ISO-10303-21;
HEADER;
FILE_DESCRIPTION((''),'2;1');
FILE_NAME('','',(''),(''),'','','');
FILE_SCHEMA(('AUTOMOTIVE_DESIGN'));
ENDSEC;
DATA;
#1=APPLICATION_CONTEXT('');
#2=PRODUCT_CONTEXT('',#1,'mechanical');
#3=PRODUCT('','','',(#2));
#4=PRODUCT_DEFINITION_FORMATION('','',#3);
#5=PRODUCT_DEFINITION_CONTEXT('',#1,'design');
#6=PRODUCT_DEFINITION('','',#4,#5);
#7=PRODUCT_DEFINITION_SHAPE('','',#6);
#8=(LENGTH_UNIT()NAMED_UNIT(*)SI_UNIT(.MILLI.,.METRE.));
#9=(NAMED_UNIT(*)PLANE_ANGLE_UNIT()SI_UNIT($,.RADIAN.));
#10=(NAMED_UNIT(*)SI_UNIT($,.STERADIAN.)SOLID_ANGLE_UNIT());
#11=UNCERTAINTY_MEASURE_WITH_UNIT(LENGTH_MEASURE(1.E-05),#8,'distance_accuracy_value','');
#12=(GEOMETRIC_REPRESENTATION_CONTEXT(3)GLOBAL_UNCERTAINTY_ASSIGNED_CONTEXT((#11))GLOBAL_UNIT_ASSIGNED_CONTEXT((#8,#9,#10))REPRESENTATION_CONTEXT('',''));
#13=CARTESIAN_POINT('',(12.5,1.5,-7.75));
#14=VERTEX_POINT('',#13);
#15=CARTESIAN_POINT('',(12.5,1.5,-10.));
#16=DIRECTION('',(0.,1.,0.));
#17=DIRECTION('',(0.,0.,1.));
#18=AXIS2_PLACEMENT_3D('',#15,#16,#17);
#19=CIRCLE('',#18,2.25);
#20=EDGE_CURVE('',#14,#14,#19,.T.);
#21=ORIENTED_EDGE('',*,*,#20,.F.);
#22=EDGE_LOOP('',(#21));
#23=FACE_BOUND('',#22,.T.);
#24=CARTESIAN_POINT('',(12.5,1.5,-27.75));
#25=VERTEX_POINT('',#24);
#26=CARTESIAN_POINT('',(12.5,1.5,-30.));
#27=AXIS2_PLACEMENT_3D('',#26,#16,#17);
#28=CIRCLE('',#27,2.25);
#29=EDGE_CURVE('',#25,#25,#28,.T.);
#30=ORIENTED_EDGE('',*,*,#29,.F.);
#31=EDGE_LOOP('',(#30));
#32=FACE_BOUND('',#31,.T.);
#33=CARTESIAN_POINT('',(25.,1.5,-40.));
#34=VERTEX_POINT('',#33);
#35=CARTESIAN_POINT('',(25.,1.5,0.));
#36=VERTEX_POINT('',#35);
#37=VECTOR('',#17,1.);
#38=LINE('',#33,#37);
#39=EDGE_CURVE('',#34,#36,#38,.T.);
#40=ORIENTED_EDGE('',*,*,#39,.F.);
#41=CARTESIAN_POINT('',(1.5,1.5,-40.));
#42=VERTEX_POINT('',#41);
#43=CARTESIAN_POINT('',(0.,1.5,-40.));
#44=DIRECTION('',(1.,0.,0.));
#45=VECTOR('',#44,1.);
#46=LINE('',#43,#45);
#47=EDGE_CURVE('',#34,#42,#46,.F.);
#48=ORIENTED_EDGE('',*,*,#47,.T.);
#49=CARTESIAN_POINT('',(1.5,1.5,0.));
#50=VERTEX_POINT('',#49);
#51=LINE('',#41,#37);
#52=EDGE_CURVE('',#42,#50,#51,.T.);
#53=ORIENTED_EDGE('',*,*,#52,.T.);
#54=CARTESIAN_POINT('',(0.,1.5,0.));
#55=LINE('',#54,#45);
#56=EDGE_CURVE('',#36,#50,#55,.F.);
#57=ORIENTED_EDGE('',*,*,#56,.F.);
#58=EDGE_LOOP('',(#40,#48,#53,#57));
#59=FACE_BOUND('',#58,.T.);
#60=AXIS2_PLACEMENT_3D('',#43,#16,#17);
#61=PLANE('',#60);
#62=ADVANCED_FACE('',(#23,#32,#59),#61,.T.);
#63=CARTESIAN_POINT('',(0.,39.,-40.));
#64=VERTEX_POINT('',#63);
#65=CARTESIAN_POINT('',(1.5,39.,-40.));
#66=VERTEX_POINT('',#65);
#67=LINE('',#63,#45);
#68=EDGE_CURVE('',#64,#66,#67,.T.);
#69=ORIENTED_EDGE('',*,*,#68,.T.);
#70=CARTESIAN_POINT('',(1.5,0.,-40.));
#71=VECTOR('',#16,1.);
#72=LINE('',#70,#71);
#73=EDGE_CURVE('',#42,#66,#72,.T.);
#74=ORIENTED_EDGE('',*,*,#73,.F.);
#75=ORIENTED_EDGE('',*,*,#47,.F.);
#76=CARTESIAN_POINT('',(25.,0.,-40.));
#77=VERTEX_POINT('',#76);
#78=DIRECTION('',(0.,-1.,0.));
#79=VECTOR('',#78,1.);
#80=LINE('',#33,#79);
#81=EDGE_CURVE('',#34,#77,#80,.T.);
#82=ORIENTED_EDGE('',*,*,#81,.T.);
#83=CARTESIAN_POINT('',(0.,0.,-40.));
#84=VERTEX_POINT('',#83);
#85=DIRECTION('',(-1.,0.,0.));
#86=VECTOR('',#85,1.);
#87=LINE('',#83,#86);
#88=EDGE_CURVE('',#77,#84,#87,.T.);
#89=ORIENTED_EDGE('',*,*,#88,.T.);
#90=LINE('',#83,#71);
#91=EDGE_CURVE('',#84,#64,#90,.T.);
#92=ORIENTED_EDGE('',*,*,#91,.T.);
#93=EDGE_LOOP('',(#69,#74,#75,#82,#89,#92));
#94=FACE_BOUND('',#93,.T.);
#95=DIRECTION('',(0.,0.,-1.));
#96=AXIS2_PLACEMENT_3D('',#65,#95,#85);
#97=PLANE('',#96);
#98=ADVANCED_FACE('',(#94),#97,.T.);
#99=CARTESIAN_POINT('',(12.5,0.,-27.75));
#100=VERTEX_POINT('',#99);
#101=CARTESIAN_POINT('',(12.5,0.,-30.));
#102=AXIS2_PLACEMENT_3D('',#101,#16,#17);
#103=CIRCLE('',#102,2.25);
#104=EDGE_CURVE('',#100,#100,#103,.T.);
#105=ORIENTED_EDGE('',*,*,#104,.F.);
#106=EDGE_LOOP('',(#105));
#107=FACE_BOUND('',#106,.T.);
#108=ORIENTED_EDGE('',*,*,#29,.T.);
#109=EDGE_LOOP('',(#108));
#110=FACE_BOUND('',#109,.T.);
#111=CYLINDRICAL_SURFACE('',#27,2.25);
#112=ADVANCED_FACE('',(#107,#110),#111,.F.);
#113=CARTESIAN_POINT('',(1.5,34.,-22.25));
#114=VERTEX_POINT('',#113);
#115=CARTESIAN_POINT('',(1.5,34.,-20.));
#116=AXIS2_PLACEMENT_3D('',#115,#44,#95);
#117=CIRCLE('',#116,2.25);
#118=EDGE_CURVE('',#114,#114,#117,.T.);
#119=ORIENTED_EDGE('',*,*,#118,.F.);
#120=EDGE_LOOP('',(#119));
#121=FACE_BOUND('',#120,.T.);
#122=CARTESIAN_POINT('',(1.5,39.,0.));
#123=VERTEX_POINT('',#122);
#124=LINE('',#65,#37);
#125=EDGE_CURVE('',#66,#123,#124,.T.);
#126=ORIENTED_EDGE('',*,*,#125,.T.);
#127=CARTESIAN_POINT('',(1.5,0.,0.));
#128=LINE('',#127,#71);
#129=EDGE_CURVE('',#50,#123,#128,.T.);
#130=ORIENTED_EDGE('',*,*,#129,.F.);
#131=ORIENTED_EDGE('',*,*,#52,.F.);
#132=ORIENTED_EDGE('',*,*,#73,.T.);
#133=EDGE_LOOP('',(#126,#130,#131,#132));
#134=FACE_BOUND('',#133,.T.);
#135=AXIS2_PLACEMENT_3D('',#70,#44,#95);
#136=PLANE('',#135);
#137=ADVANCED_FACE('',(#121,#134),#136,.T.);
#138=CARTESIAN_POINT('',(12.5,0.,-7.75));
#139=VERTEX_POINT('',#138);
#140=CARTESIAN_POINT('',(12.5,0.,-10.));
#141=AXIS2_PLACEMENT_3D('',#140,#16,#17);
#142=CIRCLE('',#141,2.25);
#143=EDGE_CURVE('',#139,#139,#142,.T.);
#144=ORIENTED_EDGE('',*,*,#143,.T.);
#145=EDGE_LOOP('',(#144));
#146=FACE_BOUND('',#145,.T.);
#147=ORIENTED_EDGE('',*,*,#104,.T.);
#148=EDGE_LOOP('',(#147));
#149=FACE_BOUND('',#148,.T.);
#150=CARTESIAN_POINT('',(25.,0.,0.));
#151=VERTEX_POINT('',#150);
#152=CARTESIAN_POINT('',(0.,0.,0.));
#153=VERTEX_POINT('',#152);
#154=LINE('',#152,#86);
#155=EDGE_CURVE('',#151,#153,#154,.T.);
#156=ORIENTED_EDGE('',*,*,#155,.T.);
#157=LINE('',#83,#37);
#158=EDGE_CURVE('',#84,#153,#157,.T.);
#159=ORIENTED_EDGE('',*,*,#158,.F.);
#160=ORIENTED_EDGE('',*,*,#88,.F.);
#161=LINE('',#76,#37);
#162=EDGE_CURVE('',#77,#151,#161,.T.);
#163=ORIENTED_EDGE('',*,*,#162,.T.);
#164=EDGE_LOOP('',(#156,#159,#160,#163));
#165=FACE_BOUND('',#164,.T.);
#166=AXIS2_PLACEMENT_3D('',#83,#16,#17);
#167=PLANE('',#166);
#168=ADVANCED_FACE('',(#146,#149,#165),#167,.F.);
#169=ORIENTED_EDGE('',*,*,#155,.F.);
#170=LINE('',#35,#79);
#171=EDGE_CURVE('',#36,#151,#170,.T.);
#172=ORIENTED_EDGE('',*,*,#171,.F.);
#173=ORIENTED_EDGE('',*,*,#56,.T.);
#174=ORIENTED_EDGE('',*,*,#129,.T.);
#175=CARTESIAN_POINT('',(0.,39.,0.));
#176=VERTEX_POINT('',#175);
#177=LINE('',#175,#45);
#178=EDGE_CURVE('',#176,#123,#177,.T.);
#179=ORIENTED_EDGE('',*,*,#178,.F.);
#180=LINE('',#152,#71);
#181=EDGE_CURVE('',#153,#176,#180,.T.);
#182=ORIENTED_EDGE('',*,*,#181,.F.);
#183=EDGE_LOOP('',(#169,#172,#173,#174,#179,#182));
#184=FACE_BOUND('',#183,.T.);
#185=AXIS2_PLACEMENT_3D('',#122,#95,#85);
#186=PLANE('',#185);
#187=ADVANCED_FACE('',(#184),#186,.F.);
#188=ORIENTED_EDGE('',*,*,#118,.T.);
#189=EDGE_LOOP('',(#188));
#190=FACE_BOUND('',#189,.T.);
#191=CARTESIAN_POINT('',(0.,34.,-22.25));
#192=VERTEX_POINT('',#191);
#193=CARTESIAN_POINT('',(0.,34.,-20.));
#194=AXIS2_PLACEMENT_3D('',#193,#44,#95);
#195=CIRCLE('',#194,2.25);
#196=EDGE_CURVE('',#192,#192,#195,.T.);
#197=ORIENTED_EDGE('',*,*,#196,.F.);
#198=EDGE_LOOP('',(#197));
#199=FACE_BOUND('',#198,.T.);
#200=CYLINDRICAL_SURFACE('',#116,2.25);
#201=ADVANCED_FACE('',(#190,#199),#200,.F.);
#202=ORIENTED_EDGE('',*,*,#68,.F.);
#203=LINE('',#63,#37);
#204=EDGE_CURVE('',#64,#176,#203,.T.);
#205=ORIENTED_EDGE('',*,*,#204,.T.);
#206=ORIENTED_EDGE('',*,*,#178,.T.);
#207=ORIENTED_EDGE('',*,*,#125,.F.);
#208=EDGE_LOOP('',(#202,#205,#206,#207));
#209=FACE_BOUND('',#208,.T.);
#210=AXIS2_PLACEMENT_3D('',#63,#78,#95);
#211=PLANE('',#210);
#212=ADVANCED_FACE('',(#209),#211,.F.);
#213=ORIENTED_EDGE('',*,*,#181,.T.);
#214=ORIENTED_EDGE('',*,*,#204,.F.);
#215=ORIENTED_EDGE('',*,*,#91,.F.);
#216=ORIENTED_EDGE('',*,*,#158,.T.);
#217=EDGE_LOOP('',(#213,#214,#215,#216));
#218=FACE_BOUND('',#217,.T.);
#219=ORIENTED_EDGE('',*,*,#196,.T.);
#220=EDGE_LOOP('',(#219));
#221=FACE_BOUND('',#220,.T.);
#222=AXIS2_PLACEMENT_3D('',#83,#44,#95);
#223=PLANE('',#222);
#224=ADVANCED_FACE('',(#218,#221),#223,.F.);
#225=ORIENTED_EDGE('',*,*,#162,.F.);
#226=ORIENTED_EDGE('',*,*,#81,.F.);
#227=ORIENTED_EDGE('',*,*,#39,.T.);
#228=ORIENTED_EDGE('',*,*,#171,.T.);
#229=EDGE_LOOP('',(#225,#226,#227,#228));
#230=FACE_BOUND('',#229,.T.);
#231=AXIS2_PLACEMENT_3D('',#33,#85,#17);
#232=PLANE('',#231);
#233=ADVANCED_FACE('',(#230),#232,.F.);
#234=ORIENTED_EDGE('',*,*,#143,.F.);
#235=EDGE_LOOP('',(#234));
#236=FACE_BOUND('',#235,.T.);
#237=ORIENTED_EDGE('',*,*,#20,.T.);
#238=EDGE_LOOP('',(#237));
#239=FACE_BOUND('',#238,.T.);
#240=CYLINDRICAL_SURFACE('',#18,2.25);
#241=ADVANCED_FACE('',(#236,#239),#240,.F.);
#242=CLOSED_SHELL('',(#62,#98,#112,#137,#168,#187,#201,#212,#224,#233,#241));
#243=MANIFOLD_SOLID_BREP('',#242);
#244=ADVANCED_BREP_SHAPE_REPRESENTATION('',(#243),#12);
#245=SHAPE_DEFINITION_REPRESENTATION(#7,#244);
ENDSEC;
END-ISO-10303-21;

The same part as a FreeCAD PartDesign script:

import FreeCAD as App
import Part
import Sketcher

doc = App.newDocument("Part")
body = doc.addObject("PartDesign::Body", "Body")

# Sketch on XY plane
sketch1 = body.newObject("Sketcher::SketchObject", "Sketch")
sketch1.AttachmentSupport = (doc.getObject("XY_Plane"), [""])
sketch1.MapMode = "FlatFace"
sketch1.addGeometry([
    Part.LineSegment(App.Vector(0, 39, 0), App.Vector(0, 0, 0)),  # 0
    Part.LineSegment(App.Vector(0, 0, 0), App.Vector(25, 0, 0)),  # 1
    Part.LineSegment(App.Vector(25, 0, 0), App.Vector(25, 1.5, 0)),  # 2
    Part.LineSegment(App.Vector(25, 1.5, 0), App.Vector(1.5, 1.5, 0)),  # 3
    Part.LineSegment(App.Vector(1.5, 1.5, 0), App.Vector(1.5, 39, 0)),  # 4
    Part.LineSegment(App.Vector(1.5, 39, 0), App.Vector(0, 39, 0)),  # 5
], False)
sketch1.addConstraint([
    Sketcher.Constraint("Coincident", 0, 2, 1, 1),
    Sketcher.Constraint("Coincident", 1, 2, 2, 1),
    Sketcher.Constraint("Coincident", 2, 2, 3, 1),
    Sketcher.Constraint("Coincident", 3, 2, 4, 1),
    Sketcher.Constraint("Coincident", 4, 2, 5, 1),
    Sketcher.Constraint("Coincident", 5, 2, 0, 1),
    Sketcher.Constraint("Vertical", 0),
    Sketcher.Constraint("Horizontal", 1),
    Sketcher.Constraint("Vertical", 2),
    Sketcher.Constraint("Horizontal", 3),
    Sketcher.Constraint("Vertical", 4),
    Sketcher.Constraint("Horizontal", 5),
    Sketcher.Constraint("Coincident", 0, 2, -1, 1),
    Sketcher.Constraint("Equal", 5, 2),
    Sketcher.Constraint("DistanceX", 1, 1, 1, 2, 25.0),
    Sketcher.Constraint("DistanceY", 0, 2, 0, 1, 39.0),
    Sketcher.Constraint("DistanceX", 3, 2, 3, 1, 23.5),
])
pad1 = body.newObject("PartDesign::Pad", "Pad")
pad1.Profile = sketch1
pad1.Length = 40
pad1.Reversed = True

# Sketch on XZ plane
sketch2 = body.newObject("Sketcher::SketchObject", "Sketch001")
sketch2.AttachmentSupport = (doc.getObject("XZ_Plane"), [""])
sketch2.MapMode = "FlatFace"
sketch2.AttachmentOffset = App.Placement(App.Vector(0, 0, -1.5), App.Rotation())
sketch2.addGeometry([
    Part.Circle(App.Vector(12.5, -10, 0), App.Vector(0, 0, 1), 2.25),
    Part.Circle(App.Vector(12.5, -30, 0), App.Vector(0, 0, 1), 2.25),
], False)
sketch2.addConstraint([
    Sketcher.Constraint("Equal", 0, 1),
    Sketcher.Constraint("Vertical", 0, 3, 1, 3),
    Sketcher.Constraint("Diameter", 0, 4.5),
    Sketcher.Constraint("DistanceY", 0, 3, -1, 1, 10.0),
    Sketcher.Constraint("DistanceY", 1, 3, -1, 1, 30.0),
    Sketcher.Constraint("DistanceX", -1, 1, 0, 3, 12.5),
])
doc.recompute()
hole = body.newObject("PartDesign::Hole", "Hole")
hole.Profile = sketch2
hole.ThreadType = "None"
hole.Diameter = 4.5
hole.DepthType = "ThroughAll"
hole.Reversed = True

# Sketch on YZ plane
sketch3 = body.newObject("Sketcher::SketchObject", "Sketch002")
sketch3.AttachmentSupport = (doc.getObject("YZ_Plane"), [""])
sketch3.MapMode = "FlatFace"
sketch3.AttachmentOffset = App.Placement(App.Vector(0, 0, 1.5), App.Rotation())
sketch3.addGeometry(Part.Circle(App.Vector(34, -20, 0), App.Vector(0, 0, 1), 2.25), False)
sketch3.addConstraint([
    Sketcher.Constraint("Diameter", 0, 4.5),
    Sketcher.Constraint("DistanceX", -1, 1, 0, 3, 34.0),
    Sketcher.Constraint("DistanceY", 0, 3, -1, 1, 20.0),
])
doc.recompute()
hole2 = body.newObject("PartDesign::Hole", "Hole001")
hole2.Profile = sketch3
hole2.ThreadType = "None"
hole2.Diameter = 4.5
hole2.DepthType = "ThroughAll"

doc.recompute()
